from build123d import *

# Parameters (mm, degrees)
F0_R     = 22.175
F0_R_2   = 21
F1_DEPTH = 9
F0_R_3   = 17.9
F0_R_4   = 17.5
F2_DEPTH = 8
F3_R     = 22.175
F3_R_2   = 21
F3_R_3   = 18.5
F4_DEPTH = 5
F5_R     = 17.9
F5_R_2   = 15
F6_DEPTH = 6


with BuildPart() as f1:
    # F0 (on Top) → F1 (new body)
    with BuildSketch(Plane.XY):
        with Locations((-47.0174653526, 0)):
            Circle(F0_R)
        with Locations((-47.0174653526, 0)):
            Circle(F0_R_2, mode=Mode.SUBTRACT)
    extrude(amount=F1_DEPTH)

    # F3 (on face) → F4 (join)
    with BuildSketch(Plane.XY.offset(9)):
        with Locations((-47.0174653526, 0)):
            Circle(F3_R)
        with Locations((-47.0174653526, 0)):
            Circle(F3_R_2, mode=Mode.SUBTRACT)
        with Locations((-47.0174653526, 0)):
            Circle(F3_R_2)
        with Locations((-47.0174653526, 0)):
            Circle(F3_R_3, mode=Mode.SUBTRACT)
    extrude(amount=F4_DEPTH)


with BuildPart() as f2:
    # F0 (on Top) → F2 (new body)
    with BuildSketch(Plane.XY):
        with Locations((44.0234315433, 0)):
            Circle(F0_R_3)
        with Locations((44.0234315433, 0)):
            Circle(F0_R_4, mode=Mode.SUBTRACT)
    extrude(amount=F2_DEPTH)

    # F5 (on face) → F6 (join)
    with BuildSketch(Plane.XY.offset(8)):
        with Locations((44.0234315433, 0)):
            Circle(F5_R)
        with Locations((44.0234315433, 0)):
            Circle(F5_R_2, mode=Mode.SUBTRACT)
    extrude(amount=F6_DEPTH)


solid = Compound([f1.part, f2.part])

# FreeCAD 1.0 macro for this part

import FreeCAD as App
import Part
import Sketcher
from FreeCAD import Vector

doc = App.newDocument("Part")
body = doc.addObject("PartDesign::Body", "Body")

sketch1 = doc.addObject("Sketcher::SketchObject", "Sketch")
body.addObject(sketch1)
sketch1.AttachmentSupport = (doc.XY_Plane, [""])
sketch1.MapMode = "FlatFace"
sketch1.addGeometry([
    Part.Circle(Vector(-47.017465, 0, 0), Vector(0, 0, 1), 22.175),
    Part.Circle(Vector(-47.017465, 0, 0), Vector(0, 0, 1), 21),
], False)
sketch1.addConstraint([
    Sketcher.Constraint("Coincident", 1, 3, 0, 3),
    Sketcher.Constraint("PointOnObject", 0, 3, -1),
    Sketcher.Constraint("Diameter", 1, 42.0),
    Sketcher.Constraint("Diameter", 0, 44.35),
    Sketcher.Constraint("DistanceX", 0, 3, -1, 1, 47.017465),
])
pad1 = doc.addObject("PartDesign::Pad", "Pad")
body.addObject(pad1)
pad1.Profile = sketch1
pad1.Length = 9

sketch2 = doc.addObject("Sketcher::SketchObject", "Sketch001")
body.addObject(sketch2)
sketch2.AttachmentSupport = (doc.XY_Plane, [""])
sketch2.MapMode = "FlatFace"
sketch2.AttachmentOffset = App.Placement(Vector(0, 0, 9), App.Rotation())
sketch2.addGeometry([
    Part.Circle(Vector(-47.017465, 0, 0), Vector(0, 0, 1), 22.175),
    Part.Circle(Vector(-47.017465, 0, 0), Vector(0, 0, 1), 18.5),
], False)
sketch2.addConstraint([
    Sketcher.Constraint("Coincident", 1, 3, 0, 3),
    Sketcher.Constraint("PointOnObject", 0, 3, -1),
    Sketcher.Constraint("Diameter", 1, 37.0),
    Sketcher.Constraint("Diameter", 0, 44.35),
    Sketcher.Constraint("DistanceX", 0, 3, -1, 1, 47.017465),
])
pad2 = doc.addObject("PartDesign::Pad", "Pad001")
body.addObject(pad2)
pad2.Profile = sketch2
pad2.Length = 5
body2 = doc.addObject("PartDesign::Body", "Body001")

sketch3 = doc.addObject("Sketcher::SketchObject", "Sketch002")
body2.addObject(sketch3)
sketch3.AttachmentSupport = (doc.getObject("XY_Plane001"), [""])
sketch3.MapMode = "FlatFace"
sketch3.addGeometry([
    Part.Circle(Vector(44.023432, 0, 0), Vector(0, 0, 1), 17.9),
    Part.Circle(Vector(44.023432, 0, 0), Vector(0, 0, 1), 17.5),
], False)
sketch3.addConstraint([
    Sketcher.Constraint("Coincident", 1, 3, 0, 3),
    Sketcher.Constraint("PointOnObject", 0, 3, -1),
    Sketcher.Constraint("Diameter", 1, 35.0),
    Sketcher.Constraint("Diameter", 0, 35.8),
    Sketcher.Constraint("DistanceX", -1, 1, 0, 3, 44.023432),
])
pad3 = doc.addObject("PartDesign::Pad", "Pad002")
body2.addObject(pad3)
pad3.Profile = sketch3
pad3.Length = 8

sketch4 = doc.addObject("Sketcher::SketchObject", "Sketch003")
body2.addObject(sketch4)
sketch4.AttachmentSupport = (doc.getObject("XY_Plane001"), [""])
sketch4.MapMode = "FlatFace"
sketch4.AttachmentOffset = App.Placement(Vector(0, 0, 8), App.Rotation())
sketch4.addGeometry([
    Part.Circle(Vector(44.023432, 0, 0), Vector(0, 0, 1), 17.9),
    Part.Circle(Vector(44.023432, 0, 0), Vector(0, 0, 1), 15),
], False)
sketch4.addConstraint([
    Sketcher.Constraint("Coincident", 1, 3, 0, 3),
    Sketcher.Constraint("PointOnObject", 0, 3, -1),
    Sketcher.Constraint("Diameter", 1, 30.0),
    Sketcher.Constraint("Diameter", 0, 35.8),
    Sketcher.Constraint("DistanceX", -1, 1, 0, 3, 44.023432),
])
pad4 = doc.addObject("PartDesign::Pad", "Pad003")
body2.addObject(pad4)
pad4.Profile = sketch4
pad4.Length = 6

doc.recompute()
